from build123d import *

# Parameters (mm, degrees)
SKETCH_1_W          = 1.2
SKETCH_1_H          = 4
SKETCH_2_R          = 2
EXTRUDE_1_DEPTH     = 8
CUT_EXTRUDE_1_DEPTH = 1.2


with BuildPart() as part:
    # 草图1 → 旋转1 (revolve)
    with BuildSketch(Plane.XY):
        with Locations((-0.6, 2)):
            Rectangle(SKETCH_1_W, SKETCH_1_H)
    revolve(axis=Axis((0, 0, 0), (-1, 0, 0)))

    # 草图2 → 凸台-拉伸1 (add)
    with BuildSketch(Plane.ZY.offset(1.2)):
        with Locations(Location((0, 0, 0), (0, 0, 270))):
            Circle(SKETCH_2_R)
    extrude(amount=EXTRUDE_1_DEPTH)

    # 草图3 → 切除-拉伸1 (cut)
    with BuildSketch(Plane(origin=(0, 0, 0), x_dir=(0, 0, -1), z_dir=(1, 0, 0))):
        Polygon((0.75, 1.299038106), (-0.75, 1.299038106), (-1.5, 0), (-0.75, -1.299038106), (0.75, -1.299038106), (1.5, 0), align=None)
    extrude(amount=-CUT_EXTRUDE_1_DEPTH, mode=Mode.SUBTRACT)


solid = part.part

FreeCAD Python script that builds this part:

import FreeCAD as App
import Part
import Sketcher
Q = App.Units.Quantity


def add_polygon(sketch, points):
    """Adds a closed chain of lines whose ends are joined by coincident constraints."""
    first, n = sketch.GeometryCount, len(points)
    for a, b in zip(points, points[1:] + points[:1]):
        sketch.addGeometry(Part.LineSegment(App.Vector(*a, 0), App.Vector(*b, 0)), False)
    for i in range(n):
        sketch.addConstraint(Sketcher.Constraint("Coincident", first + i, 2, first + (i + 1) % n, 1))

doc = App.newDocument("Part")
body = doc.addObject("PartDesign::Body", "Body")

# Sketch on XY plane
sketch1 = body.newObject("Sketcher::SketchObject", "Sketch")
sketch1.AttachmentSupport = (doc.getObject("XY_Plane"), [""])
sketch1.MapMode = "FlatFace"
add_polygon(sketch1, [(-1.2, 4), (-1.2, 0), (0, 0), (0, 4)])  # lines 0-3
sketch1.addConstraint(Sketcher.Constraint("Vertical", 0))
sketch1.addConstraint(Sketcher.Constraint("Horizontal", 1))
sketch1.addConstraint(Sketcher.Constraint("Vertical", 2))
sketch1.addConstraint(Sketcher.Constraint("Horizontal", 3))
sketch1.addConstraint(Sketcher.Constraint("Coincident", 1, 2, -1, 1))
sketch1.addConstraint(Sketcher.Constraint("DistanceY", 0, 2, 0, 1, 4.0))
sketch1.addConstraint(Sketcher.Constraint("DistanceX", 1, 1, 1, 2, 1.2))
revolution = body.newObject("PartDesign::Revolution", "Revolution")
revolution.Profile = sketch1
revolution.ReferenceAxis = (sketch1, ["H_Axis"])
revolution.Angle = 360

# Sketch on YZ plane
sketch2 = body.newObject("Sketcher::SketchObject", "Sketch001")
sketch2.AttachmentSupport = (doc.getObject("YZ_Plane"), [""])
sketch2.MapMode = "FlatFace"
sketch2.AttachmentOffset = App.Placement(App.Vector(0, 0, -1.2), App.Rotation())
sketch2.addGeometry(Part.Circle(App.Vector(0, 0, 0), App.Vector(0, 0, 1), 2), False)
sketch2.addConstraint(Sketcher.Constraint("Coincident", 0, 3, -1, 1))
sketch2.addConstraint(Sketcher.Constraint("Diameter", 0, 4.0))
pad1 = body.newObject("PartDesign::Pad", "Pad")
pad1.Profile = sketch2
pad1.Length = 8
pad1.Reversed = True

# Sketch on YZ plane
sketch3 = body.newObject("Sketcher::SketchObject", "Sketch002")
sketch3.AttachmentSupport = (doc.getObject("YZ_Plane"), [""])
sketch3.MapMode = "FlatFace"
add_polygon(sketch3, [(1.3, -0.8), (1.3, 0.8), (0, 1.5), (-1.3, 0.8), (-1.3, -0.8), (0, -1.5)])  # lines 0-5
sketch3.addConstraint(Sketcher.Constraint("Vertical", 0))
sketch3.addConstraint(Sketcher.Constraint("Vertical", 3))
sketch3.addConstraint(Sketcher.Constraint("Symmetric", 0, 2, 3, 2, -1, 1))
sketch3.addConstraint(Sketcher.Constraint("Symmetric", 1, 2, 4, 2, -1, 1))
sketch3.addConstraint(Sketcher.Constraint("PointOnObject", 1, 2, -2))
sketch3.addConstraint(Sketcher.Constraint("Parallel", 2, 5))
sketch3.addConstraint(Sketcher.Constraint("Horizontal", 0, 2, 2, 2))
sketch3.addConstraint(Sketcher.Constraint("Angle", 1, Q("150 deg")))
sketch3.addConstraint(Sketcher.Constraint("DistanceY", 0, 1, 0, 2, 1.5))
sketch3.addConstraint(Sketcher.Constraint("DistanceY", 4, 2, 1, 2, 3.0))
pocket1 = body.newObject("PartDesign::Pocket", "Pocket")
pocket1.Profile = sketch3
pocket1.Length = 1.2

doc.recompute()
